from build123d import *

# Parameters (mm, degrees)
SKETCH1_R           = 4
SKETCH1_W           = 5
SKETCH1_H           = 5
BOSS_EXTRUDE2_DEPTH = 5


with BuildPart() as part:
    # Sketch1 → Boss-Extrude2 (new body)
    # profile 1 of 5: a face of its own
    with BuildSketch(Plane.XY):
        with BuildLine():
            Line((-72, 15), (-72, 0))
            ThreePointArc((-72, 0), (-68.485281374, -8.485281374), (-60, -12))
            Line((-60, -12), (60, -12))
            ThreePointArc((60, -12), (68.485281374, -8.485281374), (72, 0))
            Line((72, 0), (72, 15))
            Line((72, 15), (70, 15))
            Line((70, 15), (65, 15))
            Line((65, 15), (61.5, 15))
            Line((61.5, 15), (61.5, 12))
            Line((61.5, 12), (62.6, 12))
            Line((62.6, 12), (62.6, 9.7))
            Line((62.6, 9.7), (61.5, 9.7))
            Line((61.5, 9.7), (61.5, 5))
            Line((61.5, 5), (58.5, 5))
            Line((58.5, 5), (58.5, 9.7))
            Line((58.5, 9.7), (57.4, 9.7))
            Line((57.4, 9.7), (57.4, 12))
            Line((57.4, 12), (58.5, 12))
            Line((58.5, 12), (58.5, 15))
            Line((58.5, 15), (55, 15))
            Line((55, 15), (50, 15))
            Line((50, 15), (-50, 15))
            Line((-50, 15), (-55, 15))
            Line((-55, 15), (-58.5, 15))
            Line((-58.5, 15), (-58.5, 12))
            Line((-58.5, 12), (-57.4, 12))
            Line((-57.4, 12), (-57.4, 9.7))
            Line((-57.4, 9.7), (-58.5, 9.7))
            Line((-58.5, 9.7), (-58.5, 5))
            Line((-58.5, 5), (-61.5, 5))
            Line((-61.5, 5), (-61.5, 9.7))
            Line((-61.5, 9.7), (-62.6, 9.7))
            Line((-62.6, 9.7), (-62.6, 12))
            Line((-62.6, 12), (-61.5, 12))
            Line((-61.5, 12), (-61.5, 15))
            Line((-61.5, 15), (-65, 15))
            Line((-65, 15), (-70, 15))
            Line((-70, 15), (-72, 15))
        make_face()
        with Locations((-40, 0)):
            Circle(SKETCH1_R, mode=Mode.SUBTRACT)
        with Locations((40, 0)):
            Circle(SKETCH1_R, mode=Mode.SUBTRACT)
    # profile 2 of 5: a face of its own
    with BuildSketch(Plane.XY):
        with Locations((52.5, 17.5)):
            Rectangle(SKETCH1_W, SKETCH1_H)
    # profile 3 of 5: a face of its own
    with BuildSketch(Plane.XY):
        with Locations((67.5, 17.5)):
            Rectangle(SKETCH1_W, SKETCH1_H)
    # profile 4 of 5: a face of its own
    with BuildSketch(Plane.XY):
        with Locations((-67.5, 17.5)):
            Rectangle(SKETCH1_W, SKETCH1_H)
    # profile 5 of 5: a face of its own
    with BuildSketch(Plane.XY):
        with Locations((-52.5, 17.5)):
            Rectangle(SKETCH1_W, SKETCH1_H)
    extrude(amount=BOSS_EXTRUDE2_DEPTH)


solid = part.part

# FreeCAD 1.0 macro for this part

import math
import FreeCAD as App
import Part
import Sketcher
Q = App.Units.Quantity

doc = App.newDocument("Part")
body = doc.addObject("PartDesign::Body", "Body")

# Sketch on XY plane
sketch1 = body.newObject("Sketcher::SketchObject", "Sketch")
sketch1.AttachmentSupport = (doc.getObject("XY_Plane"), [""])
sketch1.MapMode = "FlatFace"
sketch1.addGeometry([
    Part.LineSegment(App.Vector(-72, 15, 0), App.Vector(-72, 0, 0)),  # 0
    Part.ArcOfCircle(Part.Circle(App.Vector(-60, 0, 0), App.Vector(0, 0, 1), 12), math.radians(-180), math.radians(-90)),  # 1
    Part.LineSegment(App.Vector(-60, -12, 0), App.Vector(60, -12, 0)),  # 2
    Part.ArcOfCircle(Part.Circle(App.Vector(60, 0, 0), App.Vector(0, 0, 1), 12), math.radians(-90), math.radians(0)),  # 3
    Part.LineSegment(App.Vector(72, 0, 0), App.Vector(72, 15, 0)),  # 4
    Part.LineSegment(App.Vector(72, 15, 0), App.Vector(70, 15, 0)),  # 5
    Part.LineSegment(App.Vector(70, 15, 0), App.Vector(70, 20, 0)),  # 6
    Part.LineSegment(App.Vector(70, 20, 0), App.Vector(65, 20, 0)),  # 7
    Part.LineSegment(App.Vector(65, 20, 0), App.Vector(65, 15, 0)),  # 8
    Part.LineSegment(App.Vector(65, 15, 0), App.Vector(61.5, 15, 0)),  # 9
    Part.LineSegment(App.Vector(61.5, 15, 0), App.Vector(61.5, 12, 0)),  # 10
    Part.LineSegment(App.Vector(61.5, 12, 0), App.Vector(62.6, 12, 0)),  # 11
    Part.LineSegment(App.Vector(62.6, 12, 0), App.Vector(62.6, 9.7, 0)),  # 12
    Part.LineSegment(App.Vector(62.6, 9.7, 0), App.Vector(61.5, 9.7, 0)),  # 13
    Part.LineSegment(App.Vector(61.5, 9.7, 0), App.Vector(61.5, 5, 0)),  # 14
    Part.LineSegment(App.Vector(61.5, 5, 0), App.Vector(58.5, 5, 0)),  # 15
    Part.LineSegment(App.Vector(58.5, 5, 0), App.Vector(58.5, 9.7, 0)),  # 16
    Part.LineSegment(App.Vector(58.5, 9.7, 0), App.Vector(57.4, 9.7, 0)),  # 17
    Part.LineSegment(App.Vector(57.4, 9.7, 0), App.Vector(57.4, 12, 0)),  # 18
    Part.LineSegment(App.Vector(57.4, 12, 0), App.Vector(58.5, 12, 0)),  # 19
    Part.LineSegment(App.Vector(58.5, 12, 0), App.Vector(58.5, 15, 0)),  # 20
    Part.LineSegment(App.Vector(58.5, 15, 0), App.Vector(55, 15, 0)),  # 21
    Part.LineSegment(App.Vector(55, 15, 0), App.Vector(55, 20, 0)),  # 22
    Part.LineSegment(App.Vector(55, 20, 0), App.Vector(50, 20, 0)),  # 23
    Part.LineSegment(App.Vector(50, 20, 0), App.Vector(50, 15, 0)),  # 24
    Part.LineSegment(App.Vector(50, 15, 0), App.Vector(-50, 15, 0)),  # 25
    Part.LineSegment(App.Vector(-50, 15, 0), App.Vector(-50, 20, 0)),  # 26
    Part.LineSegment(App.Vector(-50, 20, 0), App.Vector(-55, 20, 0)),  # 27
    Part.LineSegment(App.Vector(-55, 20, 0), App.Vector(-55, 15, 0)),  # 28
    Part.LineSegment(App.Vector(-55, 15, 0), App.Vector(-58.5, 15, 0)),  # 29
    Part.LineSegment(App.Vector(-58.5, 15, 0), App.Vector(-58.5, 12, 0)),  # 30
    Part.LineSegment(App.Vector(-58.5, 12, 0), App.Vector(-57.4, 12, 0)),  # 31
    Part.LineSegment(App.Vector(-57.4, 12, 0), App.Vector(-57.4, 9.7, 0)),  # 32
    Part.LineSegment(App.Vector(-57.4, 9.7, 0), App.Vector(-58.5, 9.7, 0)),  # 33
    Part.LineSegment(App.Vector(-58.5, 9.7, 0), App.Vector(-58.5, 5, 0)),  # 34
    Part.LineSegment(App.Vector(-58.5, 5, 0), App.Vector(-61.5, 5, 0)),  # 35
    Part.LineSegment(App.Vector(-61.5, 5, 0), App.Vector(-61.5, 9.7, 0)),  # 36
    Part.LineSegment(App.Vector(-61.5, 9.7, 0), App.Vector(-62.6, 9.7, 0)),  # 37
    Part.LineSegment(App.Vector(-62.6, 9.7, 0), App.Vector(-62.6, 12, 0)),  # 38
    Part.LineSegment(App.Vector(-62.6, 12, 0), App.Vector(-61.5, 12, 0)),  # 39
    Part.LineSegment(App.Vector(-61.5, 12, 0), App.Vector(-61.5, 15, 0)),  # 40
    Part.LineSegment(App.Vector(-61.5, 15, 0), App.Vector(-65, 15, 0)),  # 41
    Part.LineSegment(App.Vector(-65, 15, 0), App.Vector(-65, 20, 0)),  # 42
    Part.LineSegment(App.Vector(-65, 20, 0), App.Vector(-70, 20, 0)),  # 43
    Part.LineSegment(App.Vector(-70, 20, 0), App.Vector(-70, 15, 0)),  # 44
    Part.LineSegment(App.Vector(-70, 15, 0), App.Vector(-72, 15, 0)),  # 45
    Part.Circle(App.Vector(-40, 0, 0), App.Vector(0, 0, 1), 4),  # 46
    Part.Circle(App.Vector(40, 0, 0), App.Vector(0, 0, 1), 4),  # 47
], False)
sketch1.addConstraint([
    Sketcher.Constraint("Tangent", 0, 2, 1, 1),
    Sketcher.Constraint("Tangent", 1, 2, 2, 1),
    Sketcher.Constraint("Tangent", 2, 2, 3, 1),
    Sketcher.Constraint("Tangent", 3, 2, 4, 1),
    Sketcher.Constraint("Coincident", 4, 2, 5, 1),
    Sketcher.Constraint("Coincident", 5, 2, 6, 1),
    Sketcher.Constraint("Coincident", 6, 2, 7, 1),
    Sketcher.Constraint("Coincident", 7, 2, 8, 1),
    Sketcher.Constraint("Coincident", 8, 2, 9, 1),
    Sketcher.Constraint("Coincident", 9, 2, 10, 1),
    Sketcher.Constraint("Coincident", 10, 2, 11, 1),
    Sketcher.Constraint("Coincident", 11, 2, 12, 1),
    Sketcher.Constraint("Coincident", 12, 2, 13, 1),
    Sketcher.Constraint("Coincident", 13, 2, 14, 1),
    Sketcher.Constraint("Coincident", 14, 2, 15, 1),
    Sketcher.Constraint("Coincident", 15, 2, 16, 1),
    Sketcher.Constraint("Coincident", 16, 2, 17, 1),
    Sketcher.Constraint("Coincident", 17, 2, 18, 1),
    Sketcher.Constraint("Coincident", 18, 2, 19, 1),
    Sketcher.Constraint("Coincident", 19, 2, 20, 1),
    Sketcher.Constraint("Coincident", 20, 2, 21, 1),
    Sketcher.Constraint("Coincident", 21, 2, 22, 1),
    Sketcher.Constraint("Coincident", 22, 2, 23, 1),
    Sketcher.Constraint("Coincident", 23, 2, 24, 1),
    Sketcher.Constraint("Coincident", 24, 2, 25, 1),
    Sketcher.Constraint("Coincident", 25, 2, 26, 1),
    Sketcher.Constraint("Coincident", 26, 2, 27, 1),
    Sketcher.Constraint("Coincident", 27, 2, 28, 1),
    Sketcher.Constraint("Coincident", 28, 2, 29, 1),
    Sketcher.Constraint("Coincident", 29, 2, 30, 1),
    Sketcher.Constraint("Coincident", 30, 2, 31, 1),
    Sketcher.Constraint("Coincident", 31, 2, 32, 1),
    Sketcher.Constraint("Coincident", 32, 2, 33, 1),
    Sketcher.Constraint("Coincident", 33, 2, 34, 1),
    Sketcher.Constraint("Coincident", 34, 2, 35, 1),
    Sketcher.Constraint("Coincident", 35, 2, 36, 1),
    Sketcher.Constraint("Coincident", 36, 2, 37, 1),
    Sketcher.Constraint("Coincident", 37, 2, 38, 1),
    Sketcher.Constraint("Coincident", 38, 2, 39, 1),
    Sketcher.Constraint("Coincident", 39, 2, 40, 1),
    Sketcher.Constraint("Coincident", 40, 2, 41, 1),
    Sketcher.Constraint("Coincident", 41, 2, 42, 1),
    Sketcher.Constraint("Coincident", 42, 2, 43, 1),
    Sketcher.Constraint("Coincident", 43, 2, 44, 1),
    Sketcher.Constraint("Coincident", 44, 2, 45, 1),
    Sketcher.Constraint("Coincident", 45, 2, 0, 1),
    Sketcher.Constraint("Vertical", 0),
    Sketcher.Constraint("Horizontal", 2),
    Sketcher.Constraint("Vertical", 4),
    Sketcher.Constraint("Horizontal", 5),
    Sketcher.Constraint("Vertical", 6),
    Sketcher.Constraint("Horizontal", 7),
    Sketcher.Constraint("Vertical", 8),
    Sketcher.Constraint("Horizontal", 9),
    Sketcher.Constraint("Vertical", 10),
    Sketcher.Constraint("Horizontal", 11),
    Sketcher.Constraint("Vertical", 12),
    Sketcher.Constraint("Horizontal", 13),
    Sketcher.Constraint("Vertical", 14),
    Sketcher.Constraint("Horizontal", 15),
    Sketcher.Constraint("Vertical", 16),
    Sketcher.Constraint("Horizontal", 17),
    Sketcher.Constraint("Vertical", 18),
    Sketcher.Constraint("Horizontal", 19),
    Sketcher.Constraint("Vertical", 20),
    Sketcher.Constraint("Horizontal", 21),
    Sketcher.Constraint("Vertical", 22),
    Sketcher.Constraint("Horizontal", 23),
    Sketcher.Constraint("Vertical", 24),
    Sketcher.Constraint("Horizontal", 25),
    Sketcher.Constraint("Vertical", 26),
    Sketcher.Constraint("Horizontal", 27),
    Sketcher.Constraint("Vertical", 28),
    Sketcher.Constraint("Horizontal", 29),
    Sketcher.Constraint("Vertical", 30),
    Sketcher.Constraint("Horizontal", 31),
    Sketcher.Constraint("Vertical", 32),
    Sketcher.Constraint("Horizontal", 33),
    Sketcher.Constraint("Vertical", 34),
    Sketcher.Constraint("Horizontal", 35),
    Sketcher.Constraint("Vertical", 36),
    Sketcher.Constraint("Horizontal", 37),
    Sketcher.Constraint("Vertical", 38),
    Sketcher.Constraint("Horizontal", 39),
    Sketcher.Constraint("Vertical", 40),
    Sketcher.Constraint("Horizontal", 41),
    Sketcher.Constraint("Vertical", 42),
    Sketcher.Constraint("Horizontal", 43),
    Sketcher.Constraint("Vertical", 44),
    Sketcher.Constraint("Horizontal", 45),
    Sketcher.Constraint("Equal", 1, 3),
    Sketcher.Constraint("Equal", 46, 47),
    Sketcher.Constraint("Symmetric", 1, 3, 3, 3, -1, 1),
    Sketcher.Constraint("Symmetric", 46, 3, 47, 3, -1, 1),
    Sketcher.Constraint("Symmetric", 23, 2, 26, 2, -2),
    Sketcher.Constraint("Symmetric", 21, 2, 28, 2, -2),
    Sketcher.Constraint("Symmetric", 19, 2, 30, 2, -2),
    Sketcher.Constraint("Symmetric", 17, 2, 32, 2, -2),
    Sketcher.Constraint("Symmetric", 15, 2, 34, 2, -2),
    Sketcher.Constraint("Symmetric", 13, 2, 36, 2, -2),
    Sketcher.Constraint("Symmetric", 11, 2, 38, 2, -2),
    Sketcher.Constraint("Symmetric", 9, 2, 40, 2, -2),
    Sketcher.Constraint("Symmetric", 7, 2, 42, 2, -2),
    Sketcher.Constraint("Symmetric", 5, 2, 44, 2, -2),
    Sketcher.Constraint("PointOnObject", 46, 3, -1),
    Sketcher.Constraint("Horizontal", 5, 2, 8, 2),
    Sketcher.Constraint("Horizontal", 13, 2, 16, 2),
    Sketcher.Constraint("Horizontal", 11, 2, 18, 2),
    Sketcher.Constraint("Horizontal", 9, 2, 20, 2),
    Sketcher.Constraint("Horizontal", 7, 2, 22, 2),
    Sketcher.Constraint("Horizontal", 21, 2, 24, 2),
    Sketcher.Constraint("Vertical", 10, 2, 13, 2),
    Sketcher.Constraint("Vertical", 16, 2, 19, 2),
    Sketcher.Constraint("Equal", 13, 17),
    Sketcher.Constraint("Equal", 9, 21),
    Sketcher.Constraint("Equal", 7, 23),
    Sketcher.Constraint("Equal", 43, 6),
    Sketcher.Constraint("Equal", 35, 10),
    Sketcher.Constraint("Diameter", 46, Q("8 mm")),
    Sketcher.Constraint("Radius", 1, Q("12 mm")),
    Sketcher.Constraint("DistanceX", 2, 1, 2, 2, Q("120 mm")),
    Sketcher.Constraint("DistanceX", 5, 2, 5, 1, Q("2 mm")),
    Sketcher.Constraint("DistanceX", 7, 2, 7, 1, Q("5 mm")),
    Sketcher.Constraint("DistanceX", 15, 2, 15, 1, Q("3 mm")),
    Sketcher.Constraint("DistanceX", 25, 2, 25, 1, Q("100 mm")),
    Sketcher.Constraint("DistanceY", 0, 2, 0, 1, Q("15 mm")),
    Sketcher.Constraint("DistanceX", 11, 1, 11, 2, Q("1.1 mm")),
    Sketcher.Constraint("DistanceY", 12, 2, 12, 1, Q("2.3 mm")),
    Sketcher.Constraint("DistanceY", 14, 2, 14, 1, Q("4.7 mm")),
    Sketcher.Constraint("DistanceX", 46, 3, -1, 1, Q("40 mm")),
])
pad1 = body.newObject("PartDesign::Pad", "Pad")
pad1.Profile = sketch1
pad1.Length = 5

doc.recompute()
